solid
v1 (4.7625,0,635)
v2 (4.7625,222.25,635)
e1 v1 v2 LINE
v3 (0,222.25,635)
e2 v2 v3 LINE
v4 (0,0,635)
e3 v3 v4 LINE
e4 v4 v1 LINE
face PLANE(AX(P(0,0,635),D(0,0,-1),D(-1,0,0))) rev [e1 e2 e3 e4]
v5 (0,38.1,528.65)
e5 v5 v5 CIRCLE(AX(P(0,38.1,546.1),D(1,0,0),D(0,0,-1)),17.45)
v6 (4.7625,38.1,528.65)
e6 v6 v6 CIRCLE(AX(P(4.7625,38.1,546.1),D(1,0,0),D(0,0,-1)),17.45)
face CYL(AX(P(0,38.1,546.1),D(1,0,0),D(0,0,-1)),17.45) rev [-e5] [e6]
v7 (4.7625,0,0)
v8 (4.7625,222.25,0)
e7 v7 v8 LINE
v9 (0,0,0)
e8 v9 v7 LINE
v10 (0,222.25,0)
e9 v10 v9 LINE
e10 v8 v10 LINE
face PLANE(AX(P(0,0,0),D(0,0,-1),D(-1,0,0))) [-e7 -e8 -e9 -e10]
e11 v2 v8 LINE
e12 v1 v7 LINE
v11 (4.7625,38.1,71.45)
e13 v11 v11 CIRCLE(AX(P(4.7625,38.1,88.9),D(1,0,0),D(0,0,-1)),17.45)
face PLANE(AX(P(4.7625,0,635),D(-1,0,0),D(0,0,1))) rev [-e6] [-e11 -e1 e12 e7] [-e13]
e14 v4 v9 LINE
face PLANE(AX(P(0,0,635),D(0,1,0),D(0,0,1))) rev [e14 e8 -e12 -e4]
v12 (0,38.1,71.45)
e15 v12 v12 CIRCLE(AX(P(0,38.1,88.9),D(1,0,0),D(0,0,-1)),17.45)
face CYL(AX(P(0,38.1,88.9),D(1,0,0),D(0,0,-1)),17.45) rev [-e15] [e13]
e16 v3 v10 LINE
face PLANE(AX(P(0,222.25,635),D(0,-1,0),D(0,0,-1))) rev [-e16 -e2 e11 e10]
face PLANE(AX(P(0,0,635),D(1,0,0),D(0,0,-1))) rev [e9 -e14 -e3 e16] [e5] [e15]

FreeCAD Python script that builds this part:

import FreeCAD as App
import Part
import Sketcher
from FreeCAD import Vector
Q = App.Units.Quantity


def add_polygon(sketch, points):
    """Adds a closed chain of lines whose ends are joined by coincident constraints."""
    first, n = sketch.GeometryCount, len(points)
    for a, b in zip(points, points[1:] + points[:1]):
        sketch.addGeometry(Part.LineSegment(App.Vector(*a, 0), App.Vector(*b, 0)), False)
    for i in range(n):
        sketch.addConstraint(Sketcher.Constraint("Coincident", first + i, 2, first + (i + 1) % n, 1))

doc = App.newDocument("Part")
body = doc.addObject("PartDesign::Body", "Body")

# Sketch on XY plane
sketch1 = body.newObject("Sketcher::SketchObject", "Sketch")
sketch1.AttachmentSupport = (doc.getObject("XY_Plane"), [""])
sketch1.MapMode = "FlatFace"
add_polygon(sketch1, [(0, 222.2), (0, 0), (4.8, 0), (4.8, 222.2)])  # lines 0-3
sketch1.addConstraint([
    Sketcher.Constraint("Vertical", 0),
    Sketcher.Constraint("Horizontal", 1),
    Sketcher.Constraint("Vertical", 2),
    Sketcher.Constraint("Horizontal", 3),
    Sketcher.Constraint("Coincident", 0, 2, -1, 1),
    Sketcher.Constraint("DistanceY", 0, 2, 0, 1, Q("8.75 in")),
    Sketcher.Constraint("DistanceX", 1, 1, 1, 2, Q("0.1875 in")),
])
pad1 = body.newObject("PartDesign::Pad", "Pad")
pad1.Profile = sketch1
pad1.Length = Q("25 in")

# Sketch on YZ plane
sketch2 = body.newObject("Sketcher::SketchObject", "Sketch001")
sketch2.AttachmentSupport = (doc.getObject("YZ_Plane"), [""])
sketch2.MapMode = "FlatFace"
sketch2.AttachmentOffset = App.Placement(Vector(0, 0, 0.1875 * 25.4), App.Rotation())
sketch2.addGeometry([
    Part.Circle(Vector(38, 546, 0), Vector(0, 0, 1), 17),
    Part.Circle(Vector(38, 89, 0), Vector(0, 0, 1), 17),
], False)
sketch2.addConstraint([
    Sketcher.Constraint("Equal", 0, 1),
    Sketcher.Constraint("Vertical", 0, 3, 1, 3),
    Sketcher.Constraint("DistanceY", 1, 3, 0, 3, Q("18 in")),
    Sketcher.Constraint("DistanceX", -1, 1, 0, 3, Q("1.5 in")),
    Sketcher.Constraint("DistanceY", -1, 1, 0, 3, Q("21.5 in")),
    Sketcher.Constraint("Diameter", 0, 34.9),
])
pocket1 = body.newObject("PartDesign::Pocket", "Pocket")
pocket1.Profile = sketch2
pocket1.Type = "ThroughAll"

doc.recompute()
